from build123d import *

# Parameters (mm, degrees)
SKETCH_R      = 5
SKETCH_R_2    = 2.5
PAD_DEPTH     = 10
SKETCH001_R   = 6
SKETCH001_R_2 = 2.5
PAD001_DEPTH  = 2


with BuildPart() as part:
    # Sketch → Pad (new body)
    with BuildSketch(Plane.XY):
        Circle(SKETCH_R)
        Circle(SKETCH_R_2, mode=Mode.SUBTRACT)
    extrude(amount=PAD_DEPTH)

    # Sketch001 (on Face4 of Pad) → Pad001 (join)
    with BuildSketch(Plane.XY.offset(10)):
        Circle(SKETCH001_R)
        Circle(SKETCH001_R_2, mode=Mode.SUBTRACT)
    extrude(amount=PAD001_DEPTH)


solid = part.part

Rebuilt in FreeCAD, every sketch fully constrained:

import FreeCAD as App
import Part
import Sketcher

V = App.Vector

doc = App.newDocument("Part")
params = doc.addObject("Spreadsheet::Sheet", "Params")
for row, (alias, value) in enumerate([
    ("sketch1_diameter", "10 mm"),
    ("sketch1_diameter2", "5 mm"),
    ("pad1_length", "10 mm"),
    ("sketch2_diameter", "12 mm"),
    ("sketch2_diameter2", "5 mm"),
    ("pad2_length", "2 mm"),
], start=1):
    params.set(f"A{row}", alias)
    params.set(f"B{row}", "=" + value)
    params.setAlias(f"B{row}", alias)

body = doc.addObject("PartDesign::Body", "Body")

# Sketch on XY plane
sketch1 = doc.addObject("Sketcher::SketchObject", "Sketch")
body.addObject(sketch1)
sketch1.AttachmentSupport = (doc.XY_Plane, [""])
sketch1.MapMode = "FlatFace"
sketch1.addGeometry([
    Part.Circle(V(0, 0, 0), V(0, 0, 1), 5),
    Part.Circle(V(0, 0, 0), V(0, 0, 1), 2.5),
], False)
sketch1.addConstraint([
    Sketcher.Constraint("Coincident", 0, 3, -1, 1),
    Sketcher.Constraint("Coincident", 1, 3, -1, 1),
    Sketcher.Constraint("Diameter", 0, 10.0),
    Sketcher.Constraint("Diameter", 1, 5.0),
])
sketch1.setExpression("Constraints[2]", "Params.sketch1_diameter")
sketch1.setExpression("Constraints[3]", "Params.sketch1_diameter2")
pad1 = doc.addObject("PartDesign::Pad", "Pad")
body.addObject(pad1)
pad1.Profile = sketch1
pad1.setExpression("Length", "Params.pad1_length")

# Sketch on XY plane
sketch2 = doc.addObject("Sketcher::SketchObject", "Sketch001")
body.addObject(sketch2)
sketch2.AttachmentSupport = (doc.XY_Plane, [""])
sketch2.MapMode = "FlatFace"
sketch2.AttachmentOffset = App.Placement(V(0, 0, 10), App.Rotation())
sketch2.addGeometry([
    Part.Circle(V(0, 0, 0), V(0, 0, 1), 6),
    Part.Circle(V(0, 0, 0), V(0, 0, 1), 2.5),
], False)
sketch2.addConstraint([
    Sketcher.Constraint("Coincident", 0, 3, -1, 1),
    Sketcher.Constraint("Coincident", 1, 3, -1, 1),
    Sketcher.Constraint("Diameter", 0, 12.0),
    Sketcher.Constraint("Diameter", 1, 5.0),
])
sketch2.setExpression("Constraints[2]", "Params.sketch2_diameter")
sketch2.setExpression("Constraints[3]", "Params.sketch2_diameter2")
pad2 = doc.addObject("PartDesign::Pad", "Pad001")
body.addObject(pad2)
pad2.Profile = sketch2
pad2.setExpression("Length", "Params.pad2_length")

doc.recompute()
